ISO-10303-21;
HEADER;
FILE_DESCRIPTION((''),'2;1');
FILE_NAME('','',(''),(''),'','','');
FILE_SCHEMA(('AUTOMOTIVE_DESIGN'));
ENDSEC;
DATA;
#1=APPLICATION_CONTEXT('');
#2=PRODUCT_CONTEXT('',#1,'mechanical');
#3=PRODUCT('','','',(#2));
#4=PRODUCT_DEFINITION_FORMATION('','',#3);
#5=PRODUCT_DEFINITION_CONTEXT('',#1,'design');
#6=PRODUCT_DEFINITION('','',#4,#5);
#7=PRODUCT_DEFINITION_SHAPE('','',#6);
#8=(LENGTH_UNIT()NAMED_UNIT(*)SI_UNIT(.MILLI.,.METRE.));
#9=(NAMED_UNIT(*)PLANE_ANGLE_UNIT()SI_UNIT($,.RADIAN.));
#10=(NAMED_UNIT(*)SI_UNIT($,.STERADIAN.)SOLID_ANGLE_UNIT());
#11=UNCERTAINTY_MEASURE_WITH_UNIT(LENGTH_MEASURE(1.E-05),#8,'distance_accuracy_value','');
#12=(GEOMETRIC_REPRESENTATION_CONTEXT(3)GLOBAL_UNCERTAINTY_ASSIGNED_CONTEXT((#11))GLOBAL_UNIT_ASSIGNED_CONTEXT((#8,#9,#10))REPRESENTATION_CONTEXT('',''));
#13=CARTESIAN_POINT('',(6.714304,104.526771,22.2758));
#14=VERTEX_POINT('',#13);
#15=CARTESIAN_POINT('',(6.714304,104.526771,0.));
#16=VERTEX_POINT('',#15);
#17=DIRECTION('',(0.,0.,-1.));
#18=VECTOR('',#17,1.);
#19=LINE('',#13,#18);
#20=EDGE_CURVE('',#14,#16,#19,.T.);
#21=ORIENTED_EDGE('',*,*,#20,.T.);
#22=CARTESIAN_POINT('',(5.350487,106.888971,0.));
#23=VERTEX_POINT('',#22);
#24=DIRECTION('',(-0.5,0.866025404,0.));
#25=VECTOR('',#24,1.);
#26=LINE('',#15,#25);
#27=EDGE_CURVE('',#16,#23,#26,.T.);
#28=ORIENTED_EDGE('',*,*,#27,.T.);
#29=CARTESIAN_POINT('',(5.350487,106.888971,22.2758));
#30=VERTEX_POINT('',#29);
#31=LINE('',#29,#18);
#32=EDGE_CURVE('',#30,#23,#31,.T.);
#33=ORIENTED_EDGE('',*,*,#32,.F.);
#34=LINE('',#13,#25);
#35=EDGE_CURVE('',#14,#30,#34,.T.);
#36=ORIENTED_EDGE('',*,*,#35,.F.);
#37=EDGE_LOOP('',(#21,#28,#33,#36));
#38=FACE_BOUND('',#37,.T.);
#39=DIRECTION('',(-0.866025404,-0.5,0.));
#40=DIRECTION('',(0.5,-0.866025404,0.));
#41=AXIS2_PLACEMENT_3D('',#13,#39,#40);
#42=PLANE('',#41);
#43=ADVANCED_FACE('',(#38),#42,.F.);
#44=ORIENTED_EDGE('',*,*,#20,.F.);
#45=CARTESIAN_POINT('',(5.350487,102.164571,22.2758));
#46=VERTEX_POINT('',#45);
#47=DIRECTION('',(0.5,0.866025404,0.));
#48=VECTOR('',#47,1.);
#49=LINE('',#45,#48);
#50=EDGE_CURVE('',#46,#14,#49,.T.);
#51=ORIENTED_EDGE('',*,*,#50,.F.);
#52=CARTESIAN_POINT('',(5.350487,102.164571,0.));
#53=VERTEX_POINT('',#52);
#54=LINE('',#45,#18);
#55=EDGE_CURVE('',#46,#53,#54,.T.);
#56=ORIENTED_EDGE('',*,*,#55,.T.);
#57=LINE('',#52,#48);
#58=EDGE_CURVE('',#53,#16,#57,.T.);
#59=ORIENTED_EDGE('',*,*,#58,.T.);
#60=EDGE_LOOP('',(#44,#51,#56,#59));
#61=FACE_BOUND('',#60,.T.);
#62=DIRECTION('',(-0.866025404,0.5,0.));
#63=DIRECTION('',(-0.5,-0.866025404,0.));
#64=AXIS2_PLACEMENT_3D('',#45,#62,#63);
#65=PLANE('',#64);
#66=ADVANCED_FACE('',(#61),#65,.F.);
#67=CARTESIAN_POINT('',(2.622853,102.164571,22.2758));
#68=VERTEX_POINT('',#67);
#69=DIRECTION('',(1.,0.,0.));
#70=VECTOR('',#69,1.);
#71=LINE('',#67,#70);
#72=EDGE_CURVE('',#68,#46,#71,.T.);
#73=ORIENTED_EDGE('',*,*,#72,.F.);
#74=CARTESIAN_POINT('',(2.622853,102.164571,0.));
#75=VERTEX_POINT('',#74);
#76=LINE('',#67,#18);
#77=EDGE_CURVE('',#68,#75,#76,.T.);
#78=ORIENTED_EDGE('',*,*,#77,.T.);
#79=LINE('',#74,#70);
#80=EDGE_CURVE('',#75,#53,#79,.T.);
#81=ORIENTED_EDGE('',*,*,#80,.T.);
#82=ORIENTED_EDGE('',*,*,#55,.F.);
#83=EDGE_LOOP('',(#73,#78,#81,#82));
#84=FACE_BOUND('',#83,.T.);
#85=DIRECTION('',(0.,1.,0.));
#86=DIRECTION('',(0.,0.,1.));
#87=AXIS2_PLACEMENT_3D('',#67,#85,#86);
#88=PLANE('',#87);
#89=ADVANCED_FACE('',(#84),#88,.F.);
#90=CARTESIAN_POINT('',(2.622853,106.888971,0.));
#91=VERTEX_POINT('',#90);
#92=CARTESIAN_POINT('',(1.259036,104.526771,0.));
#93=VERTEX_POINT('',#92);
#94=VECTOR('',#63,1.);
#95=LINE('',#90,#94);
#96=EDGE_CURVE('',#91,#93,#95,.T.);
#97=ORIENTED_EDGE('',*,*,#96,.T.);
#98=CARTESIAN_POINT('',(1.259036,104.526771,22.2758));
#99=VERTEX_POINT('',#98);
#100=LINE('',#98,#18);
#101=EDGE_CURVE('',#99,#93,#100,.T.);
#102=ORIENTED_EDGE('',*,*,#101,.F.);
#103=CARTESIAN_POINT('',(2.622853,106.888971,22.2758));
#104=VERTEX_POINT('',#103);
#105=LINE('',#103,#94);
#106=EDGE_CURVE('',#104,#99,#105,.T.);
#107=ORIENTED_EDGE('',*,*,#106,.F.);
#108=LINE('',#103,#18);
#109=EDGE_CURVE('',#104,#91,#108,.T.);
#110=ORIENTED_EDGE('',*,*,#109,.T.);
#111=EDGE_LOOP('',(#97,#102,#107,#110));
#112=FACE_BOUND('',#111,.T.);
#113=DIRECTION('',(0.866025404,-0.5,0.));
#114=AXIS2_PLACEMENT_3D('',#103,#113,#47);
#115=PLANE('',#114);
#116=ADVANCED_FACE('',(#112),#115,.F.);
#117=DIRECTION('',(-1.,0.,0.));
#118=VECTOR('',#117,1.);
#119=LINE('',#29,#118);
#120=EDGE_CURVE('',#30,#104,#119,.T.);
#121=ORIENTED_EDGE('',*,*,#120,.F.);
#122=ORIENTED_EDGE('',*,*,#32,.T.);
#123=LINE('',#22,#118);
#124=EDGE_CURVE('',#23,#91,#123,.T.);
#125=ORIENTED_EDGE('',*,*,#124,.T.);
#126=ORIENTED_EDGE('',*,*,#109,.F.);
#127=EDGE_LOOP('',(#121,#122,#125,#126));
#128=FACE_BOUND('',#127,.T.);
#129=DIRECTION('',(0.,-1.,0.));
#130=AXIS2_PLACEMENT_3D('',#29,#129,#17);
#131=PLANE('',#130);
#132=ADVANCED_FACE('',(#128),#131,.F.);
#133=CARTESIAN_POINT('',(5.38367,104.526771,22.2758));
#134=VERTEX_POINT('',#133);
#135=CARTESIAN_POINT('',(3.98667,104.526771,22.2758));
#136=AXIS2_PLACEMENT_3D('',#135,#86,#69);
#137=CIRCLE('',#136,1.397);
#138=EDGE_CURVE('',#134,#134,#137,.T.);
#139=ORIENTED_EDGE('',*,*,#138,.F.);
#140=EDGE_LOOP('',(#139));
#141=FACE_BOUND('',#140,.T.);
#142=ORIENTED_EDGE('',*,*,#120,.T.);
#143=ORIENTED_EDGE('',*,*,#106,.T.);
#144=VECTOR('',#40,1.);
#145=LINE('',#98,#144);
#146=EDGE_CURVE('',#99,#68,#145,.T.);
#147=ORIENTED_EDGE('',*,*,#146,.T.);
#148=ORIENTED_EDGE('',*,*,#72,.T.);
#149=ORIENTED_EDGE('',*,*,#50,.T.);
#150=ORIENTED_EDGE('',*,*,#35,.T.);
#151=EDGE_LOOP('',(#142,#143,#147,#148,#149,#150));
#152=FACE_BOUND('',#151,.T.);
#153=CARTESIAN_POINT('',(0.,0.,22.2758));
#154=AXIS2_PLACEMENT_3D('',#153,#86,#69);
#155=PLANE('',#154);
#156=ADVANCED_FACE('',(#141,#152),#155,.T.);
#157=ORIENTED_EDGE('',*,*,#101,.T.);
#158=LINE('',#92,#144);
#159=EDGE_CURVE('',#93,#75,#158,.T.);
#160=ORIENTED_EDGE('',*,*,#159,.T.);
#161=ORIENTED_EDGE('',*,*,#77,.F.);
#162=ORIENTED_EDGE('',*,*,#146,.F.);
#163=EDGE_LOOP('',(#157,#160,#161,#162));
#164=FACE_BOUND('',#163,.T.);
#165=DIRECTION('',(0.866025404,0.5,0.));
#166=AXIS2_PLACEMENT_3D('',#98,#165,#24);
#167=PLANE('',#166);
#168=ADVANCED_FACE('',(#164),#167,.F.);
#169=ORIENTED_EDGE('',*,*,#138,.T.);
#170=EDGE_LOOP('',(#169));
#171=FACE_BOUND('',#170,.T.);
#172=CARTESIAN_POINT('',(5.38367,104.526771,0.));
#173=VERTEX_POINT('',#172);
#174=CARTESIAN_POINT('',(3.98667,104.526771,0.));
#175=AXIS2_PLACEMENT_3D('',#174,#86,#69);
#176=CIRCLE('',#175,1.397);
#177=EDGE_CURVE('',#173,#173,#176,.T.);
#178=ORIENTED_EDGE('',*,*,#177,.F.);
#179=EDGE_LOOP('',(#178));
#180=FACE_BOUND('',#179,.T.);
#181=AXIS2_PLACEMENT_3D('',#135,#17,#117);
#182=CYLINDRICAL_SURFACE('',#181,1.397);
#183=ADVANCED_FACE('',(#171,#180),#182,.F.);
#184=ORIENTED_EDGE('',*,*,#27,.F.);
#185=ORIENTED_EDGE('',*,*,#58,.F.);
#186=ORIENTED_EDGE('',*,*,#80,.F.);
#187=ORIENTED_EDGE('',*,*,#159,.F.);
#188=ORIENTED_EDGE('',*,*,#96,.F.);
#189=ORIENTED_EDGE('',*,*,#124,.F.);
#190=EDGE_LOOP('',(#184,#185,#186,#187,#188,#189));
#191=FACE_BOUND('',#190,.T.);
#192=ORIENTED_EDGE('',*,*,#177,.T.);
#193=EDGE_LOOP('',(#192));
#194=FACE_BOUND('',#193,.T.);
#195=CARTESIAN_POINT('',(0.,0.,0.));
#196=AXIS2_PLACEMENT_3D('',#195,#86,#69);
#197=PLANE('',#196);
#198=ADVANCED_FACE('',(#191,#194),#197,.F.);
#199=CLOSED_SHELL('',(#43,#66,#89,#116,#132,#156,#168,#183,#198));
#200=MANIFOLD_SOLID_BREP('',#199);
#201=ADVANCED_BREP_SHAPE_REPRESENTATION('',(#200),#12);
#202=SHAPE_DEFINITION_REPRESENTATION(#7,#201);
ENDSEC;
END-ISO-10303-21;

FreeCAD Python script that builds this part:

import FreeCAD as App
import Part
import Sketcher
Q = App.Units.Quantity

doc = App.newDocument("Part")
body = doc.addObject("PartDesign::Body", "Body")

# Sketch on XY plane
sketch1 = body.newObject("Sketcher::SketchObject", "Sketch")
sketch1.AttachmentSupport = (doc.getObject("XY_Plane"), [""])
sketch1.MapMode = "FlatFace"
sketch1.addGeometry([
    Part.LineSegment(App.Vector(2.6, 106.9, 0), App.Vector(1.3, 104.5, 0)),  # 0
    Part.LineSegment(App.Vector(1.3, 104.5, 0), App.Vector(2.6, 102.2, 0)),  # 1
    Part.LineSegment(App.Vector(2.6, 102.2, 0), App.Vector(5.4, 102.2, 0)),  # 2
    Part.LineSegment(App.Vector(5.4, 102.2, 0), App.Vector(6.7, 104.5, 0)),  # 3
    Part.LineSegment(App.Vector(6.7, 104.5, 0), App.Vector(5.4, 106.9, 0)),  # 4
    Part.LineSegment(App.Vector(5.4, 106.9, 0), App.Vector(2.6, 106.9, 0)),  # 5
    Part.Circle(App.Vector(4, 104.5, 0), App.Vector(0, 0, 1), 1.4),  # 6
], False)
sketch1.addConstraint([
    Sketcher.Constraint("Coincident", 0, 2, 1, 1),
    Sketcher.Constraint("Coincident", 1, 2, 2, 1),
    Sketcher.Constraint("Coincident", 2, 2, 3, 1),
    Sketcher.Constraint("Coincident", 3, 2, 4, 1),
    Sketcher.Constraint("Coincident", 4, 2, 5, 1),
    Sketcher.Constraint("Coincident", 5, 2, 0, 1),
    Sketcher.Constraint("Horizontal", 2),
    Sketcher.Constraint("Horizontal", 5),
    Sketcher.Constraint("Parallel", 0, 3),
    Sketcher.Constraint("Parallel", 1, 4),
    Sketcher.Constraint("Horizontal", 6, 3, 0, 2),
    Sketcher.Constraint("Horizontal", 0, 2, 3, 2),
    Sketcher.Constraint("Vertical", 2, 2, 4, 2),
    Sketcher.Constraint("Vertical", 1, 2, 5, 2),
    Sketcher.Constraint("Diameter", 6, Q("0.11 in")),
    Sketcher.Constraint("Angle", 0, Q("-120 deg")),
    Sketcher.Constraint("DistanceY", 1, 2, 6, 3, Q("0.093 in")),
    Sketcher.Constraint("DistanceX", 2, 1, 2, 2, Q("2.727634 mm")),
    Sketcher.Constraint("DistanceX", -1, 1, 6, 3, Q("3.98667 mm")),
    Sketcher.Constraint("DistanceY", -1, 1, 6, 3, Q("104.526771 mm")),
    Sketcher.Constraint("DistanceX", -1, 1, 0, 2, Q("1.259036 mm")),
])
pad1 = body.newObject("PartDesign::Pad", "Pad")
pad1.Profile = sketch1
pad1.Length = Q("0.877 in")

doc.recompute()
